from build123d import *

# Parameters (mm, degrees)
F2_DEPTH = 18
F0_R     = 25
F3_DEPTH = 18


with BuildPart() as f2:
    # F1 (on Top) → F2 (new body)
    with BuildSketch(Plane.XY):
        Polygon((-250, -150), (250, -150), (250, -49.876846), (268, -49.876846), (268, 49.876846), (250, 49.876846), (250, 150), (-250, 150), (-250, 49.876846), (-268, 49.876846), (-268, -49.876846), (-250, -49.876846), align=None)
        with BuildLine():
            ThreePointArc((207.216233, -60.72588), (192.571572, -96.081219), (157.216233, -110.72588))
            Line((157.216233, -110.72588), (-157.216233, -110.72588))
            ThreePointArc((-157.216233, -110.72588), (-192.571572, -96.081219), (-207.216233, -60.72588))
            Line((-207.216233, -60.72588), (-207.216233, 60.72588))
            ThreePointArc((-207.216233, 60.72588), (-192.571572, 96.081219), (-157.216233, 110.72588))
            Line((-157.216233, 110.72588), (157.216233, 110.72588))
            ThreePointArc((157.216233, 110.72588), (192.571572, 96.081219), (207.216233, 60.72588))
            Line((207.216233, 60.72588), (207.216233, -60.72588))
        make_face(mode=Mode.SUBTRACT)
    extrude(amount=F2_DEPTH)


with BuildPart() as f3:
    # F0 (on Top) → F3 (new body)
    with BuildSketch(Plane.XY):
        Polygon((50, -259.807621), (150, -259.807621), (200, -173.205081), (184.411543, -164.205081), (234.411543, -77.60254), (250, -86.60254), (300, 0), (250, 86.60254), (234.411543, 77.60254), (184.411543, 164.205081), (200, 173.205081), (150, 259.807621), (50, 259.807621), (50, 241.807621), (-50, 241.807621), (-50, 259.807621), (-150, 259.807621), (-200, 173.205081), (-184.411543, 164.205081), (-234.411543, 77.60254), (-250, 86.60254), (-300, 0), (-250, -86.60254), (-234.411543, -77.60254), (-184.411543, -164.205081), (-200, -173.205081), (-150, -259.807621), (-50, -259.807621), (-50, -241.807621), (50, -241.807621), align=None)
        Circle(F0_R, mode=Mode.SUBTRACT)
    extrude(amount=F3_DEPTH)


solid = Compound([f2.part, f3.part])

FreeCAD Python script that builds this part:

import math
import FreeCAD as App
import Part
import Sketcher
Q = App.Units.Quantity


def add_polygon(sketch, points):
    """Adds a closed chain of lines whose ends are joined by coincident constraints."""
    first, n = sketch.GeometryCount, len(points)
    for a, b in zip(points, points[1:] + points[:1]):
        sketch.addGeometry(Part.LineSegment(App.Vector(*a, 0), App.Vector(*b, 0)), False)
    for i in range(n):
        sketch.addConstraint(Sketcher.Constraint("Coincident", first + i, 2, first + (i + 1) % n, 1))

doc = App.newDocument("Part")
body = doc.addObject("PartDesign::Body", "Body")

# Sketch on XY plane
sketch1 = body.newObject("Sketcher::SketchObject", "Sketch")
sketch1.AttachmentSupport = (doc.getObject("XY_Plane"), [""])
sketch1.MapMode = "FlatFace"
add_polygon(sketch1, [(-250, -150), (250, -150), (250, -50), (268, -50), (268, 50), (250, 50), (250, 150), (-250, 150), (-250, 50), (-268, 50), (-268, -50), (-250, -50)])  # lines 0-11
sketch1.addGeometry(Part.LineSegment(App.Vector(207, 61, 0), App.Vector(207, -61, 0)), False)  # 12
sketch1.addGeometry(Part.ArcOfCircle(Part.Circle(App.Vector(157, -61, 0), App.Vector(0, 0, 1), 50), math.radians(-90), math.radians(0)), False)  # 13
sketch1.addGeometry(Part.LineSegment(App.Vector(157, -111, 0), App.Vector(-157, -111, 0)), False)  # 14
sketch1.addGeometry(Part.ArcOfCircle(Part.Circle(App.Vector(-157, -61, 0), App.Vector(0, 0, 1), 50), math.radians(-180), math.radians(-90)), False)  # 15
sketch1.addGeometry(Part.LineSegment(App.Vector(-207, -61, 0), App.Vector(-207, 61, 0)), False)  # 16
sketch1.addGeometry(Part.ArcOfCircle(Part.Circle(App.Vector(-157, 61, 0), App.Vector(0, 0, 1), 50), math.radians(90), math.radians(180)), False)  # 17
sketch1.addGeometry(Part.LineSegment(App.Vector(-157, 111, 0), App.Vector(157, 111, 0)), False)  # 18
sketch1.addGeometry(Part.ArcOfCircle(Part.Circle(App.Vector(157, 61, 0), App.Vector(0, 0, 1), 50), math.radians(0), math.radians(90)), False)  # 19
sketch1.addConstraint([
    Sketcher.Constraint("Tangent", 12, 2, 13, 2),
    Sketcher.Constraint("Tangent", 13, 1, 14, 1),
    Sketcher.Constraint("Tangent", 14, 2, 15, 2),
    Sketcher.Constraint("Tangent", 15, 1, 16, 1),
    Sketcher.Constraint("Tangent", 16, 2, 17, 2),
    Sketcher.Constraint("Tangent", 17, 1, 18, 1),
    Sketcher.Constraint("Tangent", 18, 2, 19, 2),
    Sketcher.Constraint("Tangent", 19, 1, 12, 1),
    Sketcher.Constraint("Horizontal", 0),
    Sketcher.Constraint("Vertical", 1),
    Sketcher.Constraint("Horizontal", 2),
    Sketcher.Constraint("Vertical", 3),
    Sketcher.Constraint("Horizontal", 4),
    Sketcher.Constraint("Vertical", 5),
    Sketcher.Constraint("Horizontal", 6),
    Sketcher.Constraint("Vertical", 7),
    Sketcher.Constraint("Horizontal", 8),
    Sketcher.Constraint("Vertical", 9),
    Sketcher.Constraint("Horizontal", 10),
    Sketcher.Constraint("Vertical", 11),
    Sketcher.Constraint("Vertical", 12),
    Sketcher.Constraint("Horizontal", 14),
    Sketcher.Constraint("Vertical", 16),
    Sketcher.Constraint("Horizontal", 18),
    Sketcher.Constraint("Equal", 13, 15),
    Sketcher.Constraint("Equal", 15, 17),
    Sketcher.Constraint("Equal", 17, 19),
    Sketcher.Constraint("Symmetric", 13, 3, 17, 3, -1, 1),
    Sketcher.Constraint("Symmetric", 0, 2, 6, 2, -1, 1),
    Sketcher.Constraint("Symmetric", 2, 2, 8, 2, -1, 1),
    Sketcher.Constraint("Symmetric", 4, 2, 10, 2, -1, 1),
    Sketcher.Constraint("Symmetric", 4, 2, 7, 2, -2),
    Sketcher.Constraint("Radius", 13, 50.0),
    Sketcher.Constraint("DistanceX", 0, 1, 0, 2, 500.0),
    Sketcher.Constraint("DistanceX", 2, 1, 2, 2, 18.0),
    Sketcher.Constraint("DistanceY", 0, 2, -1, 1, 150.0),
    Sketcher.Constraint("DistanceY", 3, 1, 3, 2, 99.753692),
    Sketcher.Constraint("DistanceY", 12, 2, 12, 1, 121.45176),
    Sketcher.Constraint("DistanceX", 14, 2, 14, 1, 314.432466),
])
pad1 = body.newObject("PartDesign::Pad", "Pad")
pad1.Profile = sketch1
pad1.Length = 18
body2 = doc.addObject("PartDesign::Body", "Body001")

# Sketch on XY plane
sketch2 = body2.newObject("Sketcher::SketchObject", "Sketch001")
sketch2.AttachmentSupport = (doc.getObject("XY_Plane001"), [""])
sketch2.MapMode = "FlatFace"
add_polygon(sketch2, [(50, -260), (150, -260), (200, -173), (184, -164), (234, -78), (250, -87), (300, 0), (250, 87), (234, 78), (184, 164), (200, 173), (150, 260), (50, 260), (50, 242), (-50, 242), (-50, 260), (-150, 260), (-200, 173), (-184, 164), (-234, 78), (-250, 87), (-300, 0), (-250, -87), (-234, -78), (-184, -164), (-200, -173), (-150, -260), (-50, -260), (-50, -242), (50, -242)])  # lines 0-29
sketch2.addGeometry(Part.Circle(App.Vector(0, 0, 0), App.Vector(0, 0, 1), 25), False)  # 30
sketch2.addConstraint([
    Sketcher.Constraint("Horizontal", 0),
    Sketcher.Constraint("Horizontal", 11),
    Sketcher.Constraint("Vertical", 12),
    Sketcher.Constraint("Horizontal", 13),
    Sketcher.Constraint("Vertical", 14),
    Sketcher.Constraint("Horizontal", 15),
    Sketcher.Constraint("Horizontal", 26),
    Sketcher.Constraint("Vertical", 27),
    Sketcher.Constraint("Horizontal", 28),
    Sketcher.Constraint("Vertical", 29),
    Sketcher.Constraint("Coincident", 30, 3, -1, 1),
    Sketcher.Constraint("Symmetric", 0, 2, 15, 2, -1, 1),
    Sketcher.Constraint("Symmetric", 1, 2, 16, 2, -1, 1),
    Sketcher.Constraint("Symmetric", 2, 2, 17, 2, -1, 1),
    Sketcher.Constraint("Symmetric", 3, 2, 18, 2, -1, 1),
    Sketcher.Constraint("Symmetric", 4, 2, 19, 2, -1, 1),
    Sketcher.Constraint("Symmetric", 5, 2, 20, 2, -1, 1),
    Sketcher.Constraint("Symmetric", 6, 2, 21, 2, -1, 1),
    Sketcher.Constraint("Symmetric", 7, 2, 22, 2, -1, 1),
    Sketcher.Constraint("Symmetric", 8, 2, 23, 2, -1, 1),
    Sketcher.Constraint("Symmetric", 9, 2, 24, 2, -1, 1),
    Sketcher.Constraint("Symmetric", 10, 2, 25, 2, -1, 1),
    Sketcher.Constraint("Symmetric", 12, 2, 27, 2, -1, 1),
    Sketcher.Constraint("Symmetric", 11, 2, 14, 2, -2),
    Sketcher.Constraint("Symmetric", 9, 2, 16, 2, -2),
    Sketcher.Constraint("Symmetric", 8, 2, 17, 2, -2),
    Sketcher.Constraint("Symmetric", 7, 2, 18, 2, -2),
    Sketcher.Constraint("Symmetric", 6, 2, 19, 2, -2),
    Sketcher.Constraint("PointOnObject", 5, 2, -1),
    Sketcher.Constraint("Perpendicular", 1, 2),
    Sketcher.Constraint("Perpendicular", 2, 3),
    Sketcher.Constraint("Perpendicular", 3, 4),
    Sketcher.Constraint("Perpendicular", 4, 5),
    Sketcher.Constraint("Perpendicular", 9, 10),
    Sketcher.Constraint("Vertical", 12, 2, 28, 2),
    Sketcher.Constraint("Equal", 11, 13),
    Sketcher.Constraint("Equal", 1, 3),
    Sketcher.Constraint("Equal", 2, 4),
    Sketcher.Constraint("Equal", 3, 5),
    Sketcher.Constraint("Diameter", 30, 50.0),
    Sketcher.Constraint("DistanceX", 0, 1, 0, 2, 100.0),
    Sketcher.Constraint("DistanceY", 12, 2, 12, 1, 18.0),
    Sketcher.Constraint("Angle", 1, Q("60 deg")),
    Sketcher.Constraint("Distance", 1, 100.0),
    Sketcher.Constraint("Distance", 2, 18.0),
])
pad2 = body2.newObject("PartDesign::Pad", "Pad001")
pad2.Profile = sketch2
pad2.Length = 18

doc.recompute()
